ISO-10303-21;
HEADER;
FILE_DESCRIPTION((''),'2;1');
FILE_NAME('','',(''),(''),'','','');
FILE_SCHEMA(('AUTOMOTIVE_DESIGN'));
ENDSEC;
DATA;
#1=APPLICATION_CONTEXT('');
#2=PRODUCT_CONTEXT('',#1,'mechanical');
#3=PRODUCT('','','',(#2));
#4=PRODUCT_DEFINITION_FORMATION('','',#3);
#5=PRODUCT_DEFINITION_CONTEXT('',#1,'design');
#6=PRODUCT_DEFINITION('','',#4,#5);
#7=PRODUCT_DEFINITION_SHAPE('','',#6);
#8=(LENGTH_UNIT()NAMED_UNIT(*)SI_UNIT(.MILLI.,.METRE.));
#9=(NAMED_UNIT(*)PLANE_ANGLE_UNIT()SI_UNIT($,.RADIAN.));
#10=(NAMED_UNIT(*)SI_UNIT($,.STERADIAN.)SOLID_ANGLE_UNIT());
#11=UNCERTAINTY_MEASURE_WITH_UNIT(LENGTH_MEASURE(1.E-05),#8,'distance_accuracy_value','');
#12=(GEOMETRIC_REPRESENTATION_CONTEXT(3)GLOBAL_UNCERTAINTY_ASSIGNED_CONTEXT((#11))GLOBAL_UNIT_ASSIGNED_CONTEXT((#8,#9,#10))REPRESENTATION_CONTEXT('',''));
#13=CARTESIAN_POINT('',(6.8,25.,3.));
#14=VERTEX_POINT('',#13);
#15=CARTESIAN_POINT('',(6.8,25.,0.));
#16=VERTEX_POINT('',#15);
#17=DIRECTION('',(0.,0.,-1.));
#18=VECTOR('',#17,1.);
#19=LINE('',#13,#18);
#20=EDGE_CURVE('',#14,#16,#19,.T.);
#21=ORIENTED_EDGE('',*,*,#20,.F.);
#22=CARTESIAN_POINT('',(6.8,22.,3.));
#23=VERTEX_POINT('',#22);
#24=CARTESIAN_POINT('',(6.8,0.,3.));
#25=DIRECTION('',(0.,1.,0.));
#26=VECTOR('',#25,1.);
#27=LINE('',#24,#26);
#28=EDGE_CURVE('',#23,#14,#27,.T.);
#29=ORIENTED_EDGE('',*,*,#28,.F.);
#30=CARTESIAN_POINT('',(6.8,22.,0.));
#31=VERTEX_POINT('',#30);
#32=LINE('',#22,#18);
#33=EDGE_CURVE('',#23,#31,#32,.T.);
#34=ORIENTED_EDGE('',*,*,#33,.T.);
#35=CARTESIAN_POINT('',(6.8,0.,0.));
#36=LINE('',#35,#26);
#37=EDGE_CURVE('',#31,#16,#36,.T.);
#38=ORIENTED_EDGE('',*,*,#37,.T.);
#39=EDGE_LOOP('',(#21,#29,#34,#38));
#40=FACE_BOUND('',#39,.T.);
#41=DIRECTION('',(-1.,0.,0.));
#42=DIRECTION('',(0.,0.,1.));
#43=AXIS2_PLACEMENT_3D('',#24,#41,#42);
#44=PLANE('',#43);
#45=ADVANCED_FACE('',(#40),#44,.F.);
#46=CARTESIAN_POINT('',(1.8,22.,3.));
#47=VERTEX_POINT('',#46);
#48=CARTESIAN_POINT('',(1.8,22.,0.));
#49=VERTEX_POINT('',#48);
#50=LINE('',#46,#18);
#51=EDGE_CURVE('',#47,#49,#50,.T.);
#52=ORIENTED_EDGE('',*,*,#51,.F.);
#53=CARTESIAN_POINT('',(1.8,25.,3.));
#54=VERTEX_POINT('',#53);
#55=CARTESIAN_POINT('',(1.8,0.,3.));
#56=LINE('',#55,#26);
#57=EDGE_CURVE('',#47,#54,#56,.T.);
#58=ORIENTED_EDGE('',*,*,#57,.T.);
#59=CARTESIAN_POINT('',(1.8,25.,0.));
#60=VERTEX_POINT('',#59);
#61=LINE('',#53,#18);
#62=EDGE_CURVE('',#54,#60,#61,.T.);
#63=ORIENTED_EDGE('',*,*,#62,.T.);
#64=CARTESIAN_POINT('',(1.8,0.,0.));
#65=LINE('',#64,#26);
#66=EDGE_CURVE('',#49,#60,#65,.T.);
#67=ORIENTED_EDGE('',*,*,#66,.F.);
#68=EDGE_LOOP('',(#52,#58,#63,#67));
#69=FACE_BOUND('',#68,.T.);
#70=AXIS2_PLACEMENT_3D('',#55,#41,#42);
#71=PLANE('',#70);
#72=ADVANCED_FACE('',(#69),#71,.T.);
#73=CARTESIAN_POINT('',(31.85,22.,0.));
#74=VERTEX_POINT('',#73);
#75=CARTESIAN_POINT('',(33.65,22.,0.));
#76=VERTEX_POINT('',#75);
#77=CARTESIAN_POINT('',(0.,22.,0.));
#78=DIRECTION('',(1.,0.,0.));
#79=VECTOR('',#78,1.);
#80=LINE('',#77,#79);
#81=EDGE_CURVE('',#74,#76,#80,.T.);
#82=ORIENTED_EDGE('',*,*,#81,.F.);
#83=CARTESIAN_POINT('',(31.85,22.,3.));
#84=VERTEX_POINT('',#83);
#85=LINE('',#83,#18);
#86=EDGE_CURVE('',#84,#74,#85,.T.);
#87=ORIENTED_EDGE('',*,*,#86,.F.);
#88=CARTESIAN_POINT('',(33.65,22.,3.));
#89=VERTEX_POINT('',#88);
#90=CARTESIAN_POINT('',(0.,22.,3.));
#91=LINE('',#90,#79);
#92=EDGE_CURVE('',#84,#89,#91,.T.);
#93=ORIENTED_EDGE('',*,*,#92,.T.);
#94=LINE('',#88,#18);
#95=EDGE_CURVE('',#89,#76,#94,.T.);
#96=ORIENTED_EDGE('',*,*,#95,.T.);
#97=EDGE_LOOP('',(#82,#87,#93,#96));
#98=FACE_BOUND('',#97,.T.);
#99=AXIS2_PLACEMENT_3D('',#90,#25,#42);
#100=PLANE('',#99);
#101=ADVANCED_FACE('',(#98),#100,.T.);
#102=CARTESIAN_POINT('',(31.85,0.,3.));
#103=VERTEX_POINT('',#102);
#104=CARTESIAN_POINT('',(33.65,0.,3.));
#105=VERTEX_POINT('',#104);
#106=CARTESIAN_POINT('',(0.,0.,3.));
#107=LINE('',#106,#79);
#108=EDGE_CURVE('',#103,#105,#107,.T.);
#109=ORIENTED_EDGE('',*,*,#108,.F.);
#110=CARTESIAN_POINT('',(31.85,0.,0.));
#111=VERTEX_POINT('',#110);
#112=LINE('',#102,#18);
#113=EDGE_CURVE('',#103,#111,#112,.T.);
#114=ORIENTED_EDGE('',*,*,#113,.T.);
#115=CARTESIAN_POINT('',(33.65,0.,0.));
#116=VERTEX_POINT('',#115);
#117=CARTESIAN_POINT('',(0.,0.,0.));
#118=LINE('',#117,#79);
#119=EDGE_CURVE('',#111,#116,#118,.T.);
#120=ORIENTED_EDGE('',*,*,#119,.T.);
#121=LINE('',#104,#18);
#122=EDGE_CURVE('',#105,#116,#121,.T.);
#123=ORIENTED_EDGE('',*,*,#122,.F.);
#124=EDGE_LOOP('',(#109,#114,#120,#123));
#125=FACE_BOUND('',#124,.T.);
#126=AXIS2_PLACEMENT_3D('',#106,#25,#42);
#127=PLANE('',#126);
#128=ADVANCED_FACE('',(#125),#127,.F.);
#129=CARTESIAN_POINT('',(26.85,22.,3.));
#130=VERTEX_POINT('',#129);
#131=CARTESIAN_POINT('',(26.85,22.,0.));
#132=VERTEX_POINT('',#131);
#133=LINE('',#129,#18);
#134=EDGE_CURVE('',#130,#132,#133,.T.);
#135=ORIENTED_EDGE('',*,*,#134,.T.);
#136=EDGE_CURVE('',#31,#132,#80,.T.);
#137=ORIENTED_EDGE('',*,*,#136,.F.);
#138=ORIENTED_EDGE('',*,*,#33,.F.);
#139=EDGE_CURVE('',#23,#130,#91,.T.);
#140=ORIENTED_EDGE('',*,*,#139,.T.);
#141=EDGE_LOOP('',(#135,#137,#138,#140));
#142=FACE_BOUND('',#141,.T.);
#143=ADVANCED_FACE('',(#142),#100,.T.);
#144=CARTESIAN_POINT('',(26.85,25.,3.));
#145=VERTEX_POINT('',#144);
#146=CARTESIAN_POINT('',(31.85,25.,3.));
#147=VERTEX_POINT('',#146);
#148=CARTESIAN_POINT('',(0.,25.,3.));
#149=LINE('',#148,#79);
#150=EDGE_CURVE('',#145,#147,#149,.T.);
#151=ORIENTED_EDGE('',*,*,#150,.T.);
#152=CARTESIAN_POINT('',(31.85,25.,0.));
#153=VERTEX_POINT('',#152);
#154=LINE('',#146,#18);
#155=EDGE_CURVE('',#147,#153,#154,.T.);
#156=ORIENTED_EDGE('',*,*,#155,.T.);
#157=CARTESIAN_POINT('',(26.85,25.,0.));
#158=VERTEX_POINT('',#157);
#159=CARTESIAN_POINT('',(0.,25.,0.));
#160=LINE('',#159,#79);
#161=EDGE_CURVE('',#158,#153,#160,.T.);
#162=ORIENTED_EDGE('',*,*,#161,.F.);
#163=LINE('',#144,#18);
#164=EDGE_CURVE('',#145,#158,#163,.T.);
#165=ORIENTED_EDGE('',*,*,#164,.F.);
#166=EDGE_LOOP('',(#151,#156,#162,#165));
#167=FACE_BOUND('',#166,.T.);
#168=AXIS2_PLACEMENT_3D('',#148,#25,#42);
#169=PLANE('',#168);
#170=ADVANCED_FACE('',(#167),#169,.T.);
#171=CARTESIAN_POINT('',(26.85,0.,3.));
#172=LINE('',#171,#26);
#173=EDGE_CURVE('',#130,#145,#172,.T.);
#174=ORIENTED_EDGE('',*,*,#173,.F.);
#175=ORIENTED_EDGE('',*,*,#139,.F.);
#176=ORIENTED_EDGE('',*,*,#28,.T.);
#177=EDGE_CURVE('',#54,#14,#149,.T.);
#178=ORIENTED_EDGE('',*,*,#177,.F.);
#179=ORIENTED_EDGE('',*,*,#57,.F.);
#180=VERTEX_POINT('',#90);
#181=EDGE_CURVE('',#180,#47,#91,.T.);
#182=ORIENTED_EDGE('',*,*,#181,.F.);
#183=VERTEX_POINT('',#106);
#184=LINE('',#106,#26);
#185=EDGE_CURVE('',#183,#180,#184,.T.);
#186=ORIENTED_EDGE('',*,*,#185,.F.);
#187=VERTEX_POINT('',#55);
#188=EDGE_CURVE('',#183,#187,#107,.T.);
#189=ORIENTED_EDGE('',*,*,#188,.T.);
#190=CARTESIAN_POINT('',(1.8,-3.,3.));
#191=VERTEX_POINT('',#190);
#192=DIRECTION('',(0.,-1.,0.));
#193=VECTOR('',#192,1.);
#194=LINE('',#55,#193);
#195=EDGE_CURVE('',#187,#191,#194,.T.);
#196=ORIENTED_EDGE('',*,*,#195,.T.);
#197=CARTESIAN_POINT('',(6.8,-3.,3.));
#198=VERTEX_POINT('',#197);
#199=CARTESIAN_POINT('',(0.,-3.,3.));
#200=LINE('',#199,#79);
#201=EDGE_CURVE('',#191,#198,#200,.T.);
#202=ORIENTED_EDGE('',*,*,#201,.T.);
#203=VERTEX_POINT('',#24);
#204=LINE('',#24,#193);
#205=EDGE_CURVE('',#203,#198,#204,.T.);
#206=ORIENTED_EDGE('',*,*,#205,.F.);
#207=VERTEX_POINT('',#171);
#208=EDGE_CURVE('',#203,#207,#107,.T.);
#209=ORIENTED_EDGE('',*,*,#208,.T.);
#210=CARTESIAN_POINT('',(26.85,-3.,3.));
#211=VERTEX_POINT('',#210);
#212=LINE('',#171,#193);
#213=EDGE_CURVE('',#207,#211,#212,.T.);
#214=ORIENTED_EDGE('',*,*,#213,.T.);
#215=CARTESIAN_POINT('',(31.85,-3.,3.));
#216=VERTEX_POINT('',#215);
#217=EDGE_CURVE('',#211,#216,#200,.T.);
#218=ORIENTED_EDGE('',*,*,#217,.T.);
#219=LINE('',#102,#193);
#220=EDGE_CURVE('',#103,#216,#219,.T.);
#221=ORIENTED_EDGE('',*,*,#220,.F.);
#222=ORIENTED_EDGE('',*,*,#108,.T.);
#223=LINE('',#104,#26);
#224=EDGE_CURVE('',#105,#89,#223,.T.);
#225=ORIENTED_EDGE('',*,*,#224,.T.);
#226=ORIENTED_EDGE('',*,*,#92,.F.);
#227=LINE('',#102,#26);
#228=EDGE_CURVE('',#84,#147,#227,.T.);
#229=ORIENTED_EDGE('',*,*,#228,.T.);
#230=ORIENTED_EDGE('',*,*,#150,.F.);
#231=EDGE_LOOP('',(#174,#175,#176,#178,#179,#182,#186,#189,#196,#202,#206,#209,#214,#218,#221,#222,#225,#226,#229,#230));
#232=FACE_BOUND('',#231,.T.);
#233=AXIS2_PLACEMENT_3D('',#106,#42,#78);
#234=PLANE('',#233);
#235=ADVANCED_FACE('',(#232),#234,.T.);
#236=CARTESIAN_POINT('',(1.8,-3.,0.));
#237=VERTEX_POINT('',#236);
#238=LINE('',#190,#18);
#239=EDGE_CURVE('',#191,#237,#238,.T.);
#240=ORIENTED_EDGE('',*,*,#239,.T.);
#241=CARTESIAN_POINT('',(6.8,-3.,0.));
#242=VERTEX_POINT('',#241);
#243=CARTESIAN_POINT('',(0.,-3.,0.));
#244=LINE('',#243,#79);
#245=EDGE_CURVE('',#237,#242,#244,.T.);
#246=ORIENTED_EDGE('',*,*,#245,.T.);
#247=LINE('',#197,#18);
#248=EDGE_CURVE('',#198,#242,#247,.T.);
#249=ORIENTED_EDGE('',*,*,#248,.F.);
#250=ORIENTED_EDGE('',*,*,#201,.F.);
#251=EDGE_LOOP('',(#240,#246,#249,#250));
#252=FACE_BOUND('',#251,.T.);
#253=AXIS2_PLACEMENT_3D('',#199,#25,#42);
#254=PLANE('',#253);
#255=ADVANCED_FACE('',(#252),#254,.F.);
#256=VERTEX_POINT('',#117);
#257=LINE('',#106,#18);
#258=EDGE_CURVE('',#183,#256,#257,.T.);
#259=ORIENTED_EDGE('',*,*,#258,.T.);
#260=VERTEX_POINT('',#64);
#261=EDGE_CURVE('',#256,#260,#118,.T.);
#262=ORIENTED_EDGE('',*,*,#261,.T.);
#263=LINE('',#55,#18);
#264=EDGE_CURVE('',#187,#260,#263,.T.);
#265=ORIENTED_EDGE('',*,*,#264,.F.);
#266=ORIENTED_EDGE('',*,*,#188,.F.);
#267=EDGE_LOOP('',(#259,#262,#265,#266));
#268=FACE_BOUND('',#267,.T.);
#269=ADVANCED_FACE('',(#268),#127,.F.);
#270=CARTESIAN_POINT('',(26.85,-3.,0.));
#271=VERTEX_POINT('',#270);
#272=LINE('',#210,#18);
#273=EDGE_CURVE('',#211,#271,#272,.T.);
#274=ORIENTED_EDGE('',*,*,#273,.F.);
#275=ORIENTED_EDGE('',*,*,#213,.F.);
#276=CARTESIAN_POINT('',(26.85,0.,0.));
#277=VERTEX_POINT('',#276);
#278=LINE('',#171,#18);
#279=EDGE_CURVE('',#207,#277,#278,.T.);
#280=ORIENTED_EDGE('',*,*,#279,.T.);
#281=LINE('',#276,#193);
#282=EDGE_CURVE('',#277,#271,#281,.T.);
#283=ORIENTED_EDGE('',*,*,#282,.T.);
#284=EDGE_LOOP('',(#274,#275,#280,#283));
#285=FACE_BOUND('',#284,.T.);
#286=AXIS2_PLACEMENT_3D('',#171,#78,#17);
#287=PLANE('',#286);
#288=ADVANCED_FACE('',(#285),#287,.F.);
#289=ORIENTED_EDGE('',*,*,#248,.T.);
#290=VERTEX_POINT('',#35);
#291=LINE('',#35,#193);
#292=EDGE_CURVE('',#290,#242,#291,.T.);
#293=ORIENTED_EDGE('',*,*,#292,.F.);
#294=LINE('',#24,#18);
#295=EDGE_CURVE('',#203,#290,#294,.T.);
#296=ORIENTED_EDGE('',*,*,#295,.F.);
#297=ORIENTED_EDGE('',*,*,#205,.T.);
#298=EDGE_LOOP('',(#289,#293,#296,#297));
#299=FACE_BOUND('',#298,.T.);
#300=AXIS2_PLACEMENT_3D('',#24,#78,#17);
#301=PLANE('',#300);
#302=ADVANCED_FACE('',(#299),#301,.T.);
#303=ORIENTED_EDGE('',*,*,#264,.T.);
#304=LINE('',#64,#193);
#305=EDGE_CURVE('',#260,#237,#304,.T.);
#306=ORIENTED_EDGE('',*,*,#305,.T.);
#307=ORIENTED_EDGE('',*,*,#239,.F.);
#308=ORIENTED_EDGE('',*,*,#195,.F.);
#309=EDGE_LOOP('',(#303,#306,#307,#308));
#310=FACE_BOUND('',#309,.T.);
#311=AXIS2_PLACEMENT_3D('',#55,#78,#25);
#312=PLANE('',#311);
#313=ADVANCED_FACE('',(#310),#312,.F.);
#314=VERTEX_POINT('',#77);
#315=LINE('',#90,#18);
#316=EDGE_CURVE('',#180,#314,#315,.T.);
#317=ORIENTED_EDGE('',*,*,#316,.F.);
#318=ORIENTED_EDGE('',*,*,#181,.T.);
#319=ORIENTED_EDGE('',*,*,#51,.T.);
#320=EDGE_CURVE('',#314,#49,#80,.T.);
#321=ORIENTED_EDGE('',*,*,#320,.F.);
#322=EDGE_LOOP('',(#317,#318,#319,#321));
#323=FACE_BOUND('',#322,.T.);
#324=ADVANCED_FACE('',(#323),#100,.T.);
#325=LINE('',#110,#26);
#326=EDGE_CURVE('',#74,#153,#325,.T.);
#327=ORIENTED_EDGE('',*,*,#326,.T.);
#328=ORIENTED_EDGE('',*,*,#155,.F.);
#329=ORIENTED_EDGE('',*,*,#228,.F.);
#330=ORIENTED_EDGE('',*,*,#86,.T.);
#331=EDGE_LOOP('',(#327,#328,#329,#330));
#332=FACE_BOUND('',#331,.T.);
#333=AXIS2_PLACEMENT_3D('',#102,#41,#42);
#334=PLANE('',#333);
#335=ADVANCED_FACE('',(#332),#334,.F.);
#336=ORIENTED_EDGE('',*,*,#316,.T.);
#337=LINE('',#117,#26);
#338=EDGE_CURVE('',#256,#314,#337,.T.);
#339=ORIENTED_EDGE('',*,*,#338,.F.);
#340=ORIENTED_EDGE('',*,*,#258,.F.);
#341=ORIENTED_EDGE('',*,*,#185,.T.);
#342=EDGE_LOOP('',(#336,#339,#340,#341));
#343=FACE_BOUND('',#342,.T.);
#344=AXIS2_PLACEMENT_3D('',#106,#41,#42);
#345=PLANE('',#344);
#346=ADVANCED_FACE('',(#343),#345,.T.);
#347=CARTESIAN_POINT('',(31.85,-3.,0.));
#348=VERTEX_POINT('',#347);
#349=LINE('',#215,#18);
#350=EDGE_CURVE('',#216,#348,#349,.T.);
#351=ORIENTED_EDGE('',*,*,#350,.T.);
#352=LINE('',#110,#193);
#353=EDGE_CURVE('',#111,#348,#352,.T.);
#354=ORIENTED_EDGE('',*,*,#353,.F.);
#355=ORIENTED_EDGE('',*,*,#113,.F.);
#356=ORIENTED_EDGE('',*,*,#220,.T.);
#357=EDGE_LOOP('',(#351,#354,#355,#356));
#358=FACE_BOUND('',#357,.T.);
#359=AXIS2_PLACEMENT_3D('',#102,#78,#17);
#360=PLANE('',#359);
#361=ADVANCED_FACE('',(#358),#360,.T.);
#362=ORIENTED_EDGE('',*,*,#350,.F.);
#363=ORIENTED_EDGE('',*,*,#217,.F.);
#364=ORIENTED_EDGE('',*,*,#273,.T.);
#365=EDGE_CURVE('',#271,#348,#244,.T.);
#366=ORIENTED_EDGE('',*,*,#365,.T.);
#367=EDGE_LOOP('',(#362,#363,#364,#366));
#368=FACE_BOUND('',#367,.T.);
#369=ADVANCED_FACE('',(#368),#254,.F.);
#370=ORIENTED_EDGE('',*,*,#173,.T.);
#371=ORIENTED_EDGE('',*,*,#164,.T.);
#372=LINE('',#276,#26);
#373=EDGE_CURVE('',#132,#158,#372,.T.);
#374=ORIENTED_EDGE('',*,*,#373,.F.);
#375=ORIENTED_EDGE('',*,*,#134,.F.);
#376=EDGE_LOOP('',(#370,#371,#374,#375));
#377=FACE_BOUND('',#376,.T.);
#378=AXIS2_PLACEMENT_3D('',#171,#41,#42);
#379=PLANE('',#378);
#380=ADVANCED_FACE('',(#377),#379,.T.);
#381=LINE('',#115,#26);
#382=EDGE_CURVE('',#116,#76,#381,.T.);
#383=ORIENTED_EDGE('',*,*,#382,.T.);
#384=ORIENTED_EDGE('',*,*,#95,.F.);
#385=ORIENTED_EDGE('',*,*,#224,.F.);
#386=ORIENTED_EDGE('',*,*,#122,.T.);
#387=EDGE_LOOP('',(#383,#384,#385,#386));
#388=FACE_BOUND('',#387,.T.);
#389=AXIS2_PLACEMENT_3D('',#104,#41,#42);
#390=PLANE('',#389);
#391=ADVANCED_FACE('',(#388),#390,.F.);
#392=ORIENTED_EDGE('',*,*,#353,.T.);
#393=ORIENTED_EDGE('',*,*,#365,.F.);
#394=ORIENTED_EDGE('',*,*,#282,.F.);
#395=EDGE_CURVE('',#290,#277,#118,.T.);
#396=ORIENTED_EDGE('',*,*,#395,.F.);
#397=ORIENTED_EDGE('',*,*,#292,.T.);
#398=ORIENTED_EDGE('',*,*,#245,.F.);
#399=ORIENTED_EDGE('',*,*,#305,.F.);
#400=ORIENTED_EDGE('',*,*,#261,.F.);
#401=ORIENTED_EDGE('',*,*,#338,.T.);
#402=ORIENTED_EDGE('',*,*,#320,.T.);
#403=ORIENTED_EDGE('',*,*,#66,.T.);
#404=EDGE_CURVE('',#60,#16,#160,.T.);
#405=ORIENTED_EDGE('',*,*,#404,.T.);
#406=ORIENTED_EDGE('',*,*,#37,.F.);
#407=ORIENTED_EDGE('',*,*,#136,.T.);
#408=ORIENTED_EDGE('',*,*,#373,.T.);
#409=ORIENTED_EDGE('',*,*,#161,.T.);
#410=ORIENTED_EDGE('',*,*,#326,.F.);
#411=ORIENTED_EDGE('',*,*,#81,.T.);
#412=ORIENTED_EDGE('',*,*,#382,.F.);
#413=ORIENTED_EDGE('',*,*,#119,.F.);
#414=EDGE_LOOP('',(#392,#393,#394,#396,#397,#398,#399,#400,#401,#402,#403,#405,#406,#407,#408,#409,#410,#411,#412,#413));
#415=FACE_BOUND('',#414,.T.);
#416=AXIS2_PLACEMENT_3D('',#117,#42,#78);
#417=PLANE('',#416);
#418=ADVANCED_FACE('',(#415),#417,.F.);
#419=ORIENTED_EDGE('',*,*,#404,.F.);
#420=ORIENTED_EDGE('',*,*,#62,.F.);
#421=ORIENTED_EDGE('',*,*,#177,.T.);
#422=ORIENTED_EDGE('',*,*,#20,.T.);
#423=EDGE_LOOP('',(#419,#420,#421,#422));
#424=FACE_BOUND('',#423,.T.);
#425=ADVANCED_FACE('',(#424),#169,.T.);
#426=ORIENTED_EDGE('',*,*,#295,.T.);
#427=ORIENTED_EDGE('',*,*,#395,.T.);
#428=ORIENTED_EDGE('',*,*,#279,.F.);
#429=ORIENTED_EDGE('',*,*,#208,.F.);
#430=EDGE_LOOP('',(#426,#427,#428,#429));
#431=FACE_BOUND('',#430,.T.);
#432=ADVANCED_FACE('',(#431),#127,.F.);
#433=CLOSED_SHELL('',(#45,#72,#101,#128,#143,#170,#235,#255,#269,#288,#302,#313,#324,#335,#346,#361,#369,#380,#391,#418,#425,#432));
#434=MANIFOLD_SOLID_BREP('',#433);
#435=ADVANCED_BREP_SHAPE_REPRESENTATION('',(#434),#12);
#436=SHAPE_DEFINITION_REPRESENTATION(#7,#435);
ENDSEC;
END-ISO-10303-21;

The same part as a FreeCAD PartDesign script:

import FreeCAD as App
import Part
import Sketcher

V = App.Vector

doc = App.newDocument("Part")
body = doc.addObject("PartDesign::Body", "Body")

sketch1 = doc.addObject("Sketcher::SketchObject", "Sketch")
body.addObject(sketch1)
sketch1.AttachmentSupport = (doc.XY_Plane, [""])
sketch1.MapMode = "FlatFace"
sketch1.addGeometry([
    Part.LineSegment(V(26.9, 0, 0), V(26.9, -3, 0)),
    Part.LineSegment(V(26.9, -3, 0), V(31.9, -3, 0)),
    Part.LineSegment(V(31.9, -3, 0), V(31.9, 0, 0)),
    Part.LineSegment(V(31.9, 0, 0), V(33.6, 0, 0)),
    Part.LineSegment(V(33.6, 0, 0), V(33.6, 22, 0)),
    Part.LineSegment(V(33.6, 22, 0), V(31.9, 22, 0)),
    Part.LineSegment(V(31.9, 22, 0), V(31.9, 25, 0)),
    Part.LineSegment(V(31.9, 25, 0), V(26.9, 25, 0)),
    Part.LineSegment(V(26.9, 25, 0), V(26.9, 22, 0)),
    Part.LineSegment(V(26.9, 22, 0), V(6.8, 22, 0)),
    Part.LineSegment(V(6.8, 22, 0), V(6.8, 25, 0)),
    Part.LineSegment(V(6.8, 25, 0), V(1.8, 25, 0)),
    Part.LineSegment(V(1.8, 25, 0), V(1.8, 22, 0)),
    Part.LineSegment(V(1.8, 22, 0), V(0, 22, 0)),
    Part.LineSegment(V(0, 22, 0), V(0, 0, 0)),
    Part.LineSegment(V(0, 0, 0), V(1.8, 0, 0)),
    Part.LineSegment(V(1.8, 0, 0), V(1.8, -3, 0)),
    Part.LineSegment(V(1.8, -3, 0), V(6.8, -3, 0)),
    Part.LineSegment(V(6.8, -3, 0), V(6.8, 0, 0)),
    Part.LineSegment(V(6.8, 0, 0), V(26.9, 0, 0)),
], False)
sketch1.addConstraint([
    Sketcher.Constraint("Coincident", 0, 2, 1, 1),
    Sketcher.Constraint("Coincident", 1, 2, 2, 1),
    Sketcher.Constraint("Coincident", 2, 2, 3, 1),
    Sketcher.Constraint("Coincident", 3, 2, 4, 1),
    Sketcher.Constraint("Coincident", 4, 2, 5, 1),
    Sketcher.Constraint("Coincident", 5, 2, 6, 1),
    Sketcher.Constraint("Coincident", 6, 2, 7, 1),
    Sketcher.Constraint("Coincident", 7, 2, 8, 1),
    Sketcher.Constraint("Coincident", 8, 2, 9, 1),
    Sketcher.Constraint("Coincident", 9, 2, 10, 1),
    Sketcher.Constraint("Coincident", 10, 2, 11, 1),
    Sketcher.Constraint("Coincident", 11, 2, 12, 1),
    Sketcher.Constraint("Coincident", 12, 2, 13, 1),
    Sketcher.Constraint("Coincident", 13, 2, 14, 1),
    Sketcher.Constraint("Coincident", 14, 2, 15, 1),
    Sketcher.Constraint("Coincident", 15, 2, 16, 1),
    Sketcher.Constraint("Coincident", 16, 2, 17, 1),
    Sketcher.Constraint("Coincident", 17, 2, 18, 1),
    Sketcher.Constraint("Coincident", 18, 2, 19, 1),
    Sketcher.Constraint("Coincident", 19, 2, 0, 1),
    Sketcher.Constraint("Vertical", 0),
    Sketcher.Constraint("Horizontal", 1),
    Sketcher.Constraint("Vertical", 2),
    Sketcher.Constraint("Horizontal", 3),
    Sketcher.Constraint("Vertical", 4),
    Sketcher.Constraint("Horizontal", 5),
    Sketcher.Constraint("Vertical", 6),
    Sketcher.Constraint("Horizontal", 7),
    Sketcher.Constraint("Vertical", 8),
    Sketcher.Constraint("Horizontal", 9),
    Sketcher.Constraint("Vertical", 10),
    Sketcher.Constraint("Horizontal", 11),
    Sketcher.Constraint("Vertical", 12),
    Sketcher.Constraint("Horizontal", 13),
    Sketcher.Constraint("Vertical", 14),
    Sketcher.Constraint("Horizontal", 15),
    Sketcher.Constraint("Vertical", 16),
    Sketcher.Constraint("Horizontal", 17),
    Sketcher.Constraint("Vertical", 18),
    Sketcher.Constraint("Horizontal", 19),
    Sketcher.Constraint("Coincident", 14, 2, -1, 1),
    Sketcher.Constraint("PointOnObject", 2, 2, -1),
    Sketcher.Constraint("PointOnObject", 18, 2, -1),
    Sketcher.Constraint("Horizontal", 5, 2, 8, 2),
    Sketcher.Constraint("Horizontal", 7, 2, 10, 2),
    Sketcher.Constraint("Horizontal", 9, 2, 12, 2),
    Sketcher.Constraint("Horizontal", 1, 2, 16, 2),
    Sketcher.Constraint("Vertical", 2, 2, 5, 2),
    Sketcher.Constraint("Vertical", 0, 2, 7, 2),
    Sketcher.Constraint("Vertical", 12, 2, 15, 2),
    Sketcher.Constraint("Vertical", 10, 2, 17, 2),
    Sketcher.Constraint("Equal", 7, 11),
    Sketcher.Constraint("Equal", 5, 13),
    Sketcher.Constraint("Equal", 2, 6),
    Sketcher.Constraint("DistanceX", 1, 1, 1, 2, 5.0),
    Sketcher.Constraint("DistanceY", 0, 2, 0, 1, 3.0),
    Sketcher.Constraint("DistanceY", 4, 1, 4, 2, 22.0),
    Sketcher.Constraint("DistanceX", 3, 1, 3, 2, 1.8),
    Sketcher.Constraint("DistanceX", 9, 2, 9, 1, 20.05),
])
pad1 = doc.addObject("PartDesign::Pad", "Pad")
body.addObject(pad1)
pad1.Profile = sketch1
pad1.Length = 3

doc.recompute()
